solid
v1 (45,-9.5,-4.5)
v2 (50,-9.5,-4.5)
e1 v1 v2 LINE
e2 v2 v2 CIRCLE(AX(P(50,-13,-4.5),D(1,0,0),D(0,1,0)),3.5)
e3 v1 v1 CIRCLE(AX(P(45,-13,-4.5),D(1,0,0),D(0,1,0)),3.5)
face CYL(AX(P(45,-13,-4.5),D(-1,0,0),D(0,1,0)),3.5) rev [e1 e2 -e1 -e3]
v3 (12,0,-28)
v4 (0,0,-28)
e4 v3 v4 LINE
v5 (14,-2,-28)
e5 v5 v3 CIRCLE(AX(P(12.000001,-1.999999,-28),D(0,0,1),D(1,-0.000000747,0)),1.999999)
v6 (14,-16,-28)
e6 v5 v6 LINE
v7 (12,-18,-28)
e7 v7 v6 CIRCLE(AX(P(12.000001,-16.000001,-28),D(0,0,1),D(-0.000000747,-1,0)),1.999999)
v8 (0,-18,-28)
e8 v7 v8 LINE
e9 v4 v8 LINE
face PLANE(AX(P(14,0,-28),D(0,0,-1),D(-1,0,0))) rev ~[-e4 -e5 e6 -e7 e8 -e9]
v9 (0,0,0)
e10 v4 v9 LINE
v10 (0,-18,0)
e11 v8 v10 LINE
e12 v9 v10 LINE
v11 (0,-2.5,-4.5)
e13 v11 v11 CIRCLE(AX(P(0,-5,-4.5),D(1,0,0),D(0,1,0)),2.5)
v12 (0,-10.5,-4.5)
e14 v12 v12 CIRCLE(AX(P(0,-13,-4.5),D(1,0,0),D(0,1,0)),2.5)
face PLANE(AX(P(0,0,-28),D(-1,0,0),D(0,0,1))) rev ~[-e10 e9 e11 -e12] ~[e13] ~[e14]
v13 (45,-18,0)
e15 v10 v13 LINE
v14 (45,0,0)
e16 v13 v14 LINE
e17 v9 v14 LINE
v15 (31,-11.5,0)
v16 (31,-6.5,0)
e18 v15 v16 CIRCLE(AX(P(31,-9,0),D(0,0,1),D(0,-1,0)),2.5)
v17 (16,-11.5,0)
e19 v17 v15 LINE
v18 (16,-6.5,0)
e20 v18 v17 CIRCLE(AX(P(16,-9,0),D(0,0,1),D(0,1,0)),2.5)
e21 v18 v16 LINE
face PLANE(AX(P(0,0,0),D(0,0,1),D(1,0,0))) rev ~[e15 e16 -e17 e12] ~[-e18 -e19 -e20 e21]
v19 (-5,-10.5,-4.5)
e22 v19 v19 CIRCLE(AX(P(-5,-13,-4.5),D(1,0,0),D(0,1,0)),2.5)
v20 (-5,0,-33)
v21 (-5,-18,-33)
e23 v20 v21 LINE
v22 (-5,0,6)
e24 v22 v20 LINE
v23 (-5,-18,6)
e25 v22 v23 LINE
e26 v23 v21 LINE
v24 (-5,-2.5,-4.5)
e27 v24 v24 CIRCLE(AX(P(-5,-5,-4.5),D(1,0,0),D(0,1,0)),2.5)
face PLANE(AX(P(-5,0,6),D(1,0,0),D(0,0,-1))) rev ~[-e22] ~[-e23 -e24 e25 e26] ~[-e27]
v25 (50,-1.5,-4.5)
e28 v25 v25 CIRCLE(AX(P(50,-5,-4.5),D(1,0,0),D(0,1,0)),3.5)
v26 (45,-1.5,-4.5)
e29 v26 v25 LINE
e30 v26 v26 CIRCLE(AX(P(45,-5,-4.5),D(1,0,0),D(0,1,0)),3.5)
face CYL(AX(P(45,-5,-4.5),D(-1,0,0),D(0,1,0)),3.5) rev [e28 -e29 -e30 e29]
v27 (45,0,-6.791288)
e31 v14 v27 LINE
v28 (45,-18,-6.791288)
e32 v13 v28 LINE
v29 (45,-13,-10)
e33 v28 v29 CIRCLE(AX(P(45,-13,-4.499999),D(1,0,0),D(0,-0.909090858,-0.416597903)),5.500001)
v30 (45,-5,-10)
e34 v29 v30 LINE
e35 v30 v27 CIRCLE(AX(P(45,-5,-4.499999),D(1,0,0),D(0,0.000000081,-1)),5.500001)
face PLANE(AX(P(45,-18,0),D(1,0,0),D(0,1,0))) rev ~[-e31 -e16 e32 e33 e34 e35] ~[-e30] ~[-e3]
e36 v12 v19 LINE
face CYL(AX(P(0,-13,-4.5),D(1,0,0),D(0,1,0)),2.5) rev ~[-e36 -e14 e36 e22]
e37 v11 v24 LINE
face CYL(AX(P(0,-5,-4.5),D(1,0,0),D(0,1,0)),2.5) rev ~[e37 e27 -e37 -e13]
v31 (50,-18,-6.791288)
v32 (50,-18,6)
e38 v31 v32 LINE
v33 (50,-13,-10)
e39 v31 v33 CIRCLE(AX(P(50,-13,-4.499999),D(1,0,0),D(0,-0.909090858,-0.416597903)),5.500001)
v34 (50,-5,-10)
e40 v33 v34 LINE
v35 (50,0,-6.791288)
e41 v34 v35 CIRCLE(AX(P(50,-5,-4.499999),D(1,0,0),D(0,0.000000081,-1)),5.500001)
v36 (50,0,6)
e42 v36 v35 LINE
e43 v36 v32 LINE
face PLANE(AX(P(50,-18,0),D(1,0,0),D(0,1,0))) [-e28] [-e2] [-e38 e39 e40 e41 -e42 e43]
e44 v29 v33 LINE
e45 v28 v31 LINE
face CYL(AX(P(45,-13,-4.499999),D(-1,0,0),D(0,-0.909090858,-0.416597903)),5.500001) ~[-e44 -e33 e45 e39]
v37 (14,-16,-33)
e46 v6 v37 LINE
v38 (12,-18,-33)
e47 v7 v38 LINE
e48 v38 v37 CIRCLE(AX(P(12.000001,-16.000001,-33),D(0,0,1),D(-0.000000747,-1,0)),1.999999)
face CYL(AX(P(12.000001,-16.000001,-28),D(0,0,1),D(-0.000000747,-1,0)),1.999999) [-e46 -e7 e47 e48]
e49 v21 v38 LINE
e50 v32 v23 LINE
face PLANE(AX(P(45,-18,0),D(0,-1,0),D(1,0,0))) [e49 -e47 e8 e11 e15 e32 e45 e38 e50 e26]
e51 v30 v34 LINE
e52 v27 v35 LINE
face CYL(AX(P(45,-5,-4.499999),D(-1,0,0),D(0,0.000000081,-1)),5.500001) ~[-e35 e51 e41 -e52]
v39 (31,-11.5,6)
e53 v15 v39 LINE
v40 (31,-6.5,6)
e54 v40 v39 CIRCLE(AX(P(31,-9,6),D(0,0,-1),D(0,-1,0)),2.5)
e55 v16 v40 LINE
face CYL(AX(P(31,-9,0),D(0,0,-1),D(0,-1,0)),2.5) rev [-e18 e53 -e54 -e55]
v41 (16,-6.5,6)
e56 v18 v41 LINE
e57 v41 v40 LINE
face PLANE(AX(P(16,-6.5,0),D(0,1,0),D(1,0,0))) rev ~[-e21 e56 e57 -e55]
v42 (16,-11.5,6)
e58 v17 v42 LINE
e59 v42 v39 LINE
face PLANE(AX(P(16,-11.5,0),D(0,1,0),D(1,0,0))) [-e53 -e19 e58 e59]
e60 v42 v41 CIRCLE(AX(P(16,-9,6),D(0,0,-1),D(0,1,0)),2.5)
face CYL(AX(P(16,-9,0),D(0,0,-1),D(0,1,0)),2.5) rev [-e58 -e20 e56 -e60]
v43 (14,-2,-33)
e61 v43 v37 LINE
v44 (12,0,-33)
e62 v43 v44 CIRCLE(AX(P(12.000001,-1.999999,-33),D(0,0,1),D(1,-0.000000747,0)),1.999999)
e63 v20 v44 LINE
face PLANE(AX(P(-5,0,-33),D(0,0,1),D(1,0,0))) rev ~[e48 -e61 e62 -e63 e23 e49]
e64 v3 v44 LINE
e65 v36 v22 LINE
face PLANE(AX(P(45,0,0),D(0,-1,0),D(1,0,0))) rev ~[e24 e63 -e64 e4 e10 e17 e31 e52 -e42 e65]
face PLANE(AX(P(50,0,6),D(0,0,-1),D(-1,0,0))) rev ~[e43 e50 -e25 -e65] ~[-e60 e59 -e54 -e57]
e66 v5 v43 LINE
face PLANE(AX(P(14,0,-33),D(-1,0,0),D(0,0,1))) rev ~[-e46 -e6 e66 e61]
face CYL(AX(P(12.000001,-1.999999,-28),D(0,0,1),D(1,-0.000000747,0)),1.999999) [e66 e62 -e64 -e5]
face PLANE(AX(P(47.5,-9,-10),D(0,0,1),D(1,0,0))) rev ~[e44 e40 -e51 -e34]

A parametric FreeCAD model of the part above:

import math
import FreeCAD as App
import Part
import Sketcher
Q = App.Units.Quantity


def add_polygon(sketch, points):
    """Adds a closed chain of lines whose ends are joined by coincident constraints."""
    first, n = sketch.GeometryCount, len(points)
    for a, b in zip(points, points[1:] + points[:1]):
        sketch.addGeometry(Part.LineSegment(App.Vector(*a, 0), App.Vector(*b, 0)), False)
    for i in range(n):
        sketch.addConstraint(Sketcher.Constraint("Coincident", first + i, 2, first + (i + 1) % n, 1))

doc = App.newDocument("Part")
params = doc.addObject("Spreadsheet::Sheet", "Params")
for row, (alias, value) in enumerate([
    ("sketch1_width", "50 mm"),
    ("sketch1_width2", "55 mm"),
    ("sketch1_width3", "19 mm"),
    ("sketch1_height", "6 mm"),
    ("sketch1_height2", "39 mm"),
    ("pad1_length", "18 mm"),
    ("sketch2_radius", "2.5 mm"),
    ("sketch2_width", "15 mm"),
    ("sketch3_diameter", "5 mm"),
    ("sketch4_width", "5 mm"),
    ("sketch4_height", "18 mm"),
    ("pad2_length", "10 mm"),
    ("sketch5_diameter", "7 mm"),
    ("pocket3_length", "5 mm"),
    ("sketch6_radius", "5.500001 mm"),
    ("sketch6_width", "5 mm"),
    ("pocket4_length", "5 mm"),
    ("sketch7_radius", "1.999999 mm"),
    ("pocket5_length", "5 mm"),
], start=1):
    params.set(f"A{row}", alias)
    params.set(f"B{row}", "=" + value)
    params.setAlias(f"B{row}", alias)

body = doc.addObject("PartDesign::Body", "Body")

sketch1 = body.newObject("Sketcher::SketchObject", "Sketch")
sketch1.AttachmentSupport = (doc.getObject("XZ_Plane"), [""])
sketch1.MapMode = "FlatFace"
add_polygon(sketch1, [(0, 0), (50, 0), (50, 6), (-5, 6), (-5, -33), (14, -33), (14, -28), (0, -28)])
sketch1.addConstraint(Sketcher.Constraint("Horizontal", 0))
sketch1.addConstraint(Sketcher.Constraint("Vertical", 1))
sketch1.addConstraint(Sketcher.Constraint("Horizontal", 2))
sketch1.addConstraint(Sketcher.Constraint("Vertical", 3))
sketch1.addConstraint(Sketcher.Constraint("Horizontal", 4))
sketch1.addConstraint(Sketcher.Constraint("Vertical", 5))
sketch1.addConstraint(Sketcher.Constraint("Horizontal", 6))
sketch1.addConstraint(Sketcher.Constraint("Vertical", 7))
sketch1.addConstraint(Sketcher.Constraint("Coincident", 7, 2, -1, 1))
sketch1.addConstraint(Sketcher.Constraint("DistanceX", 0, 1, 0, 2, Q("50 mm")))
sketch1.addConstraint(Sketcher.Constraint("DistanceX", 2, 2, 2, 1, Q("55 mm")))
sketch1.addConstraint(Sketcher.Constraint("DistanceX", 4, 1, 4, 2, Q("19 mm")))
sketch1.addConstraint(Sketcher.Constraint("DistanceY", 1, 1, 1, 2, Q("6 mm")))
sketch1.addConstraint(Sketcher.Constraint("DistanceY", 3, 2, 3, 1, Q("39 mm")))
sketch1.addConstraint(Sketcher.Constraint("DistanceY", 5, 1, 5, 2, Q("5 mm")))
sketch1.setExpression("Constraints[17]", "Params.sketch1_width")
sketch1.setExpression("Constraints[18]", "Params.sketch1_width2")
sketch1.setExpression("Constraints[19]", "Params.sketch1_width3")
sketch1.setExpression("Constraints[20]", "Params.sketch1_height")
sketch1.setExpression("Constraints[21]", "Params.sketch1_height2")
pad1 = body.newObject("PartDesign::Pad", "Pad")
pad1.Profile = sketch1
pad1.setExpression("Length", "Params.pad1_length")

sketch2 = body.newObject("Sketcher::SketchObject", "Sketch001")
sketch2.AttachmentSupport = (doc.getObject("XY_Plane"), [""])
sketch2.MapMode = "FlatFace"
sketch2.addGeometry(Part.ArcOfCircle(Part.Circle(App.Vector(16, -9, 0), App.Vector(0, 0, 1), 2.5), math.radians(90), math.radians(270)), False)
sketch2.addGeometry(Part.LineSegment(App.Vector(16, -11.5, 0), App.Vector(31, -11.5, 0)), False)
sketch2.addGeometry(Part.ArcOfCircle(Part.Circle(App.Vector(31, -9, 0), App.Vector(0, 0, 1), 2.5), math.radians(-90), math.radians(90)), False)
sketch2.addGeometry(Part.LineSegment(App.Vector(31, -6.5, 0), App.Vector(16, -6.5, 0)), False)
sketch2.addConstraint(Sketcher.Constraint("Tangent", 0, 2, 1, 1))
sketch2.addConstraint(Sketcher.Constraint("Tangent", 1, 2, 2, 1))
sketch2.addConstraint(Sketcher.Constraint("Tangent", 2, 2, 3, 1))
sketch2.addConstraint(Sketcher.Constraint("Tangent", 3, 2, 0, 1))
sketch2.addConstraint(Sketcher.Constraint("Horizontal", 1))
sketch2.addConstraint(Sketcher.Constraint("Horizontal", 3))
sketch2.addConstraint(Sketcher.Constraint("Radius", 0, Q("2.5 mm")))
sketch2.addConstraint(Sketcher.Constraint("DistanceX", 1, 1, 1, 2, Q("15 mm")))
sketch2.addConstraint(Sketcher.Constraint("DistanceX", -1, 1, 0, 3, Q("16 mm")))
sketch2.addConstraint(Sketcher.Constraint("DistanceY", 0, 3, -1, 1, Q("9 mm")))
sketch2.setExpression("Constraints[6]", "Params.sketch2_radius")
sketch2.setExpression("Constraints[7]", "Params.sketch2_width")
pocket1 = body.newObject("PartDesign::Pocket", "Pocket")
pocket1.Profile = sketch2
pocket1.Type = "ThroughAll"
pocket1.Reversed = True

sketch3 = body.newObject("Sketcher::SketchObject", "Sketch002")
sketch3.AttachmentSupport = (doc.getObject("YZ_Plane"), [""])
sketch3.MapMode = "FlatFace"
sketch3.addGeometry(Part.Circle(App.Vector(-5, -4.5, 0), App.Vector(0, 0, 1), 2.5), False)
sketch3.addGeometry(Part.Circle(App.Vector(-13, -4.5, 0), App.Vector(0, 0, 1), 2.5), False)
sketch3.addConstraint(Sketcher.Constraint("Equal", 0, 1))
sketch3.addConstraint(Sketcher.Constraint("Horizontal", 0, 3, 1, 3))
sketch3.addConstraint(Sketcher.Constraint("Diameter", 0, Q("5 mm")))
sketch3.addConstraint(Sketcher.Constraint("DistanceX", 0, 3, -1, 1, Q("5 mm")))
sketch3.addConstraint(Sketcher.Constraint("DistanceX", 1, 3, -1, 1, Q("13 mm")))
sketch3.addConstraint(Sketcher.Constraint("DistanceY", 0, 3, -1, 1, Q("4.5 mm")))
sketch3.setExpression("Constraints[2]", "Params.sketch3_diameter")
pocket2 = body.newObject("PartDesign::Pocket", "Pocket001")
pocket2.Profile = sketch3
pocket2.Type = "ThroughAll"

sketch4 = body.newObject("Sketcher::SketchObject", "Sketch003")
sketch4.AttachmentSupport = (doc.getObject("XY_Plane"), [""])
sketch4.MapMode = "FlatFace"
add_polygon(sketch4, [(45, 0), (45, -18), (50, -18), (50, 0)])
sketch4.addConstraint(Sketcher.Constraint("Vertical", 0))
sketch4.addConstraint(Sketcher.Constraint("Horizontal", 1))
sketch4.addConstraint(Sketcher.Constraint("Vertical", 2))
sketch4.addConstraint(Sketcher.Constraint("Horizontal", 3))
sketch4.addConstraint(Sketcher.Constraint("PointOnObject", 2, 2, -1))
sketch4.addConstraint(Sketcher.Constraint("DistanceX", 1, 1, 1, 2, Q("5 mm")))
sketch4.addConstraint(Sketcher.Constraint("DistanceY", 0, 2, 0, 1, Q("18 mm")))
sketch4.addConstraint(Sketcher.Constraint("DistanceX", -1, 1, 0, 2, Q("45 mm")))
sketch4.setExpression("Constraints[9]", "Params.sketch4_width")
sketch4.setExpression("Constraints[10]", "Params.sketch4_height")
pad2 = body.newObject("PartDesign::Pad", "Pad001")
pad2.Profile = sketch4
pad2.setExpression("Length", "Params.pad2_length")
pad2.Reversed = True

sketch5 = body.newObject("Sketcher::SketchObject", "Sketch004")
sketch5.AttachmentSupport = (doc.getObject("YZ_Plane"), [""])
sketch5.MapMode = "FlatFace"
sketch5.AttachmentOffset = App.Placement(App.Vector(0, 0, 45), App.Rotation())
sketch5.addGeometry(Part.Circle(App.Vector(-13, -4.5, 0), App.Vector(0, 0, 1), 3.5), False)
sketch5.addGeometry(Part.Circle(App.Vector(-5, -4.5, 0), App.Vector(0, 0, 1), 3.5), False)
sketch5.addConstraint(Sketcher.Constraint("Equal", 0, 1))
sketch5.addConstraint(Sketcher.Constraint("Horizontal", 0, 3, 1, 3))
sketch5.addConstraint(Sketcher.Constraint("Diameter", 0, Q("7 mm")))
sketch5.addConstraint(Sketcher.Constraint("DistanceX", 0, 3, -1, 1, Q("13 mm")))
sketch5.addConstraint(Sketcher.Constraint("DistanceX", 1, 3, -1, 1, Q("5 mm")))
sketch5.addConstraint(Sketcher.Constraint("DistanceY", 0, 3, -1, 1, Q("4.5 mm")))
sketch5.setExpression("Constraints[2]", "Params.sketch5_diameter")
pocket3 = body.newObject("PartDesign::Pocket", "Pocket002")
pocket3.Profile = sketch5
pocket3.setExpression("Length", "Params.pocket3_length")
pocket3.Reversed = True

sketch6 = body.newObject("Sketcher::SketchObject", "Sketch005")
sketch6.AttachmentSupport = (doc.getObject("YZ_Plane"), [""])
sketch6.MapMode = "FlatFace"
sketch6.AttachmentOffset = App.Placement(App.Vector(0, 0, 45), App.Rotation())
sketch6.addGeometry(Part.ArcOfCircle(Part.Circle(App.Vector(-13, -4.5, 0), App.Vector(0, 0, 1), 5.5), math.radians(-155), math.radians(-90)), False)
sketch6.addGeometry(Part.LineSegment(App.Vector(-18, -6.8, 0), App.Vector(-18, -10, 0)), False)
sketch6.addGeometry(Part.LineSegment(App.Vector(-18, -10, 0), App.Vector(-13, -10, 0)), False)
sketch6.addGeometry(Part.LineSegment(App.Vector(0, -10, 0), App.Vector(0, -6.8, 0)), False)
sketch6.addGeometry(Part.ArcOfCircle(Part.Circle(App.Vector(-5, -4.5, 0), App.Vector(0, 0, 1), 5.5), math.radians(-90), math.radians(-25)), False)
sketch6.addGeometry(Part.LineSegment(App.Vector(-5, -10, 0), App.Vector(0, -10, 0)), False)
sketch6.addConstraint(Sketcher.Constraint("Coincident", 0, 1, 1, 1))
sketch6.addConstraint(Sketcher.Constraint("Coincident", 1, 2, 2, 1))
sketch6.addConstraint(Sketcher.Constraint("Tangent", 2, 2, 0, 2))
sketch6.addConstraint(Sketcher.Constraint("Coincident", 3, 2, 4, 2))
sketch6.addConstraint(Sketcher.Constraint("Tangent", 4, 1, 5, 1))
sketch6.addConstraint(Sketcher.Constraint("Coincident", 5, 2, 3, 1))
sketch6.addConstraint(Sketcher.Constraint("Vertical", 1))
sketch6.addConstraint(Sketcher.Constraint("Horizontal", 2))
sketch6.addConstraint(Sketcher.Constraint("Vertical", 3))
sketch6.addConstraint(Sketcher.Constraint("Horizontal", 5))
sketch6.addConstraint(Sketcher.Constraint("Equal", 0, 4))
sketch6.addConstraint(Sketcher.Constraint("PointOnObject", 3, 2, -2))
sketch6.addConstraint(Sketcher.Constraint("Horizontal", 0, 3, 4, 3))
sketch6.addConstraint(Sketcher.Constraint("Horizontal", 0, 1, 3, 2))
sketch6.addConstraint(Sketcher.Constraint("Radius", 0, Q("5.500001 mm")))
sketch6.addConstraint(Sketcher.Constraint("DistanceX", 2, 1, 2, 2, Q("5 mm")))
sketch6.addConstraint(Sketcher.Constraint("DistanceX", 0, 3, -1, 1, Q("13 mm")))
sketch6.addConstraint(Sketcher.Constraint("DistanceY", 1, 2, -1, 1, Q("10 mm")))
sketch6.setExpression("Constraints[14]", "Params.sketch6_radius")
sketch6.setExpression("Constraints[15]", "Params.sketch6_width")
pocket4 = body.newObject("PartDesign::Pocket", "Pocket003")
pocket4.Profile = sketch6
pocket4.setExpression("Length", "Params.pocket4_length")
pocket4.Reversed = True

sketch7 = body.newObject("Sketcher::SketchObject", "Sketch006")
sketch7.AttachmentSupport = (doc.getObject("XY_Plane"), [""])
sketch7.MapMode = "FlatFace"
sketch7.AttachmentOffset = App.Placement(App.Vector(0, 0, -28), App.Rotation())
sketch7.addGeometry(Part.ArcOfCircle(Part.Circle(App.Vector(12, -16, 0), App.Vector(0, 0, 1), 2), math.radians(-90), math.radians(0)), False)
sketch7.addGeometry(Part.LineSegment(App.Vector(12, -18, 0), App.Vector(14, -18, 0)), False)
sketch7.addGeometry(Part.LineSegment(App.Vector(14, -18, 0), App.Vector(14, -16, 0)), False)
sketch7.addGeometry(Part.ArcOfCircle(Part.Circle(App.Vector(12, -2, 0), App.Vector(0, 0, 1), 2), math.radians(0), math.radians(90)), False)
sketch7.addGeometry(Part.LineSegment(App.Vector(14, -2, 0), App.Vector(14, 0, 0)), False)
sketch7.addGeometry(Part.LineSegment(App.Vector(14, 0, 0), App.Vector(12, 0, 0)), False)
sketch7.addConstraint(Sketcher.Constraint("Tangent", 0, 1, 1, 1))
sketch7.addConstraint(Sketcher.Constraint("Coincident", 1, 2, 2, 1))
sketch7.addConstraint(Sketcher.Constraint("Tangent", 2, 2, 0, 2))
sketch7.addConstraint(Sketcher.Constraint("Tangent", 3, 1, 4, 1))
sketch7.addConstraint(Sketcher.Constraint("Coincident", 4, 2, 5, 1))
sketch7.addConstraint(Sketcher.Constraint("Tangent", 5, 2, 3, 2))
sketch7.addConstraint(Sketcher.Constraint("Horizontal", 1))
sketch7.addConstraint(Sketcher.Constraint("Vertical", 2))
sketch7.addConstraint(Sketcher.Constraint("Vertical", 4))
sketch7.addConstraint(Sketcher.Constraint("Horizontal", 5))
sketch7.addConstraint(Sketcher.Constraint("Equal", 0, 3))
sketch7.addConstraint(Sketcher.Constraint("PointOnObject", 4, 2, -1))
sketch7.addConstraint(Sketcher.Constraint("Vertical", 0, 3, 3, 3))
sketch7.addConstraint(Sketcher.Constraint("Radius", 0, Q("1.999999 mm")))
sketch7.addConstraint(Sketcher.Constraint("DistanceX", -1, 1, 0, 3, Q("12.000001 mm")))
sketch7.addConstraint(Sketcher.Constraint("DistanceY", 0, 3, -1, 1, Q("16.000001 mm")))
sketch7.setExpression("Constraints[13]", "Params.sketch7_radius")
pocket5 = body.newObject("PartDesign::Pocket", "Pocket004")
pocket5.Profile = sketch7
pocket5.setExpression("Length", "Params.pocket5_length")

doc.recompute()
